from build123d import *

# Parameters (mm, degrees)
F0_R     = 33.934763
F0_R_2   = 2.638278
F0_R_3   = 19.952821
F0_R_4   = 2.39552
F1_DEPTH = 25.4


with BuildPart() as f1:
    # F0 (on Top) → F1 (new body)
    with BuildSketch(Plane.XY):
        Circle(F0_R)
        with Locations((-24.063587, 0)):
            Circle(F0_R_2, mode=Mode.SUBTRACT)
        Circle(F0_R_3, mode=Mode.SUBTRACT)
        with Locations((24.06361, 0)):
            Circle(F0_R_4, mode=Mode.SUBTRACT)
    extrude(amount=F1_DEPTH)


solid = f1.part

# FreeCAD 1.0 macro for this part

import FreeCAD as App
import Part
import Sketcher

V = App.Vector
Q = App.Units.Quantity

doc = App.newDocument("Part")
body = doc.addObject("PartDesign::Body", "Body")

# Sketch on XY plane
sketch1 = body.newObject("Sketcher::SketchObject", "Sketch")
sketch1.AttachmentSupport = (doc.getObject("XY_Plane"), [""])
sketch1.MapMode = "FlatFace"
sketch1.addGeometry([
    Part.Circle(V(0, 0, 0), V(0, 0, 1), 33.9),
    Part.Circle(V(-24.1, 0, 0), V(0, 0, 1), 2.6),
    Part.Circle(V(0, 0, 0), V(0, 0, 1), 20),
    Part.Circle(V(24.1, 0, 0), V(0, 0, 1), 2.4),
], False)
sketch1.addConstraint([
    Sketcher.Constraint("Coincident", 0, 3, -1, 1),
    Sketcher.Constraint("Coincident", 2, 3, -1, 1),
    Sketcher.Constraint("PointOnObject", 1, 3, -1),
    Sketcher.Constraint("PointOnObject", 3, 3, -1),
    Sketcher.Constraint("Diameter", 3, 4.79104),
    Sketcher.Constraint("Diameter", 0, 67.869526),
    Sketcher.Constraint("Diameter", 1, 5.276556),
    Sketcher.Constraint("Diameter", 2, 39.905642),
    Sketcher.Constraint("DistanceX", -1, 1, 3, 3, 24.06361),
    Sketcher.Constraint("DistanceX", 1, 3, -1, 1, 24.063587),
])
pad1 = body.newObject("PartDesign::Pad", "Pad")
pad1.Profile = sketch1
pad1.Length = Q("1 in")

doc.recompute()
